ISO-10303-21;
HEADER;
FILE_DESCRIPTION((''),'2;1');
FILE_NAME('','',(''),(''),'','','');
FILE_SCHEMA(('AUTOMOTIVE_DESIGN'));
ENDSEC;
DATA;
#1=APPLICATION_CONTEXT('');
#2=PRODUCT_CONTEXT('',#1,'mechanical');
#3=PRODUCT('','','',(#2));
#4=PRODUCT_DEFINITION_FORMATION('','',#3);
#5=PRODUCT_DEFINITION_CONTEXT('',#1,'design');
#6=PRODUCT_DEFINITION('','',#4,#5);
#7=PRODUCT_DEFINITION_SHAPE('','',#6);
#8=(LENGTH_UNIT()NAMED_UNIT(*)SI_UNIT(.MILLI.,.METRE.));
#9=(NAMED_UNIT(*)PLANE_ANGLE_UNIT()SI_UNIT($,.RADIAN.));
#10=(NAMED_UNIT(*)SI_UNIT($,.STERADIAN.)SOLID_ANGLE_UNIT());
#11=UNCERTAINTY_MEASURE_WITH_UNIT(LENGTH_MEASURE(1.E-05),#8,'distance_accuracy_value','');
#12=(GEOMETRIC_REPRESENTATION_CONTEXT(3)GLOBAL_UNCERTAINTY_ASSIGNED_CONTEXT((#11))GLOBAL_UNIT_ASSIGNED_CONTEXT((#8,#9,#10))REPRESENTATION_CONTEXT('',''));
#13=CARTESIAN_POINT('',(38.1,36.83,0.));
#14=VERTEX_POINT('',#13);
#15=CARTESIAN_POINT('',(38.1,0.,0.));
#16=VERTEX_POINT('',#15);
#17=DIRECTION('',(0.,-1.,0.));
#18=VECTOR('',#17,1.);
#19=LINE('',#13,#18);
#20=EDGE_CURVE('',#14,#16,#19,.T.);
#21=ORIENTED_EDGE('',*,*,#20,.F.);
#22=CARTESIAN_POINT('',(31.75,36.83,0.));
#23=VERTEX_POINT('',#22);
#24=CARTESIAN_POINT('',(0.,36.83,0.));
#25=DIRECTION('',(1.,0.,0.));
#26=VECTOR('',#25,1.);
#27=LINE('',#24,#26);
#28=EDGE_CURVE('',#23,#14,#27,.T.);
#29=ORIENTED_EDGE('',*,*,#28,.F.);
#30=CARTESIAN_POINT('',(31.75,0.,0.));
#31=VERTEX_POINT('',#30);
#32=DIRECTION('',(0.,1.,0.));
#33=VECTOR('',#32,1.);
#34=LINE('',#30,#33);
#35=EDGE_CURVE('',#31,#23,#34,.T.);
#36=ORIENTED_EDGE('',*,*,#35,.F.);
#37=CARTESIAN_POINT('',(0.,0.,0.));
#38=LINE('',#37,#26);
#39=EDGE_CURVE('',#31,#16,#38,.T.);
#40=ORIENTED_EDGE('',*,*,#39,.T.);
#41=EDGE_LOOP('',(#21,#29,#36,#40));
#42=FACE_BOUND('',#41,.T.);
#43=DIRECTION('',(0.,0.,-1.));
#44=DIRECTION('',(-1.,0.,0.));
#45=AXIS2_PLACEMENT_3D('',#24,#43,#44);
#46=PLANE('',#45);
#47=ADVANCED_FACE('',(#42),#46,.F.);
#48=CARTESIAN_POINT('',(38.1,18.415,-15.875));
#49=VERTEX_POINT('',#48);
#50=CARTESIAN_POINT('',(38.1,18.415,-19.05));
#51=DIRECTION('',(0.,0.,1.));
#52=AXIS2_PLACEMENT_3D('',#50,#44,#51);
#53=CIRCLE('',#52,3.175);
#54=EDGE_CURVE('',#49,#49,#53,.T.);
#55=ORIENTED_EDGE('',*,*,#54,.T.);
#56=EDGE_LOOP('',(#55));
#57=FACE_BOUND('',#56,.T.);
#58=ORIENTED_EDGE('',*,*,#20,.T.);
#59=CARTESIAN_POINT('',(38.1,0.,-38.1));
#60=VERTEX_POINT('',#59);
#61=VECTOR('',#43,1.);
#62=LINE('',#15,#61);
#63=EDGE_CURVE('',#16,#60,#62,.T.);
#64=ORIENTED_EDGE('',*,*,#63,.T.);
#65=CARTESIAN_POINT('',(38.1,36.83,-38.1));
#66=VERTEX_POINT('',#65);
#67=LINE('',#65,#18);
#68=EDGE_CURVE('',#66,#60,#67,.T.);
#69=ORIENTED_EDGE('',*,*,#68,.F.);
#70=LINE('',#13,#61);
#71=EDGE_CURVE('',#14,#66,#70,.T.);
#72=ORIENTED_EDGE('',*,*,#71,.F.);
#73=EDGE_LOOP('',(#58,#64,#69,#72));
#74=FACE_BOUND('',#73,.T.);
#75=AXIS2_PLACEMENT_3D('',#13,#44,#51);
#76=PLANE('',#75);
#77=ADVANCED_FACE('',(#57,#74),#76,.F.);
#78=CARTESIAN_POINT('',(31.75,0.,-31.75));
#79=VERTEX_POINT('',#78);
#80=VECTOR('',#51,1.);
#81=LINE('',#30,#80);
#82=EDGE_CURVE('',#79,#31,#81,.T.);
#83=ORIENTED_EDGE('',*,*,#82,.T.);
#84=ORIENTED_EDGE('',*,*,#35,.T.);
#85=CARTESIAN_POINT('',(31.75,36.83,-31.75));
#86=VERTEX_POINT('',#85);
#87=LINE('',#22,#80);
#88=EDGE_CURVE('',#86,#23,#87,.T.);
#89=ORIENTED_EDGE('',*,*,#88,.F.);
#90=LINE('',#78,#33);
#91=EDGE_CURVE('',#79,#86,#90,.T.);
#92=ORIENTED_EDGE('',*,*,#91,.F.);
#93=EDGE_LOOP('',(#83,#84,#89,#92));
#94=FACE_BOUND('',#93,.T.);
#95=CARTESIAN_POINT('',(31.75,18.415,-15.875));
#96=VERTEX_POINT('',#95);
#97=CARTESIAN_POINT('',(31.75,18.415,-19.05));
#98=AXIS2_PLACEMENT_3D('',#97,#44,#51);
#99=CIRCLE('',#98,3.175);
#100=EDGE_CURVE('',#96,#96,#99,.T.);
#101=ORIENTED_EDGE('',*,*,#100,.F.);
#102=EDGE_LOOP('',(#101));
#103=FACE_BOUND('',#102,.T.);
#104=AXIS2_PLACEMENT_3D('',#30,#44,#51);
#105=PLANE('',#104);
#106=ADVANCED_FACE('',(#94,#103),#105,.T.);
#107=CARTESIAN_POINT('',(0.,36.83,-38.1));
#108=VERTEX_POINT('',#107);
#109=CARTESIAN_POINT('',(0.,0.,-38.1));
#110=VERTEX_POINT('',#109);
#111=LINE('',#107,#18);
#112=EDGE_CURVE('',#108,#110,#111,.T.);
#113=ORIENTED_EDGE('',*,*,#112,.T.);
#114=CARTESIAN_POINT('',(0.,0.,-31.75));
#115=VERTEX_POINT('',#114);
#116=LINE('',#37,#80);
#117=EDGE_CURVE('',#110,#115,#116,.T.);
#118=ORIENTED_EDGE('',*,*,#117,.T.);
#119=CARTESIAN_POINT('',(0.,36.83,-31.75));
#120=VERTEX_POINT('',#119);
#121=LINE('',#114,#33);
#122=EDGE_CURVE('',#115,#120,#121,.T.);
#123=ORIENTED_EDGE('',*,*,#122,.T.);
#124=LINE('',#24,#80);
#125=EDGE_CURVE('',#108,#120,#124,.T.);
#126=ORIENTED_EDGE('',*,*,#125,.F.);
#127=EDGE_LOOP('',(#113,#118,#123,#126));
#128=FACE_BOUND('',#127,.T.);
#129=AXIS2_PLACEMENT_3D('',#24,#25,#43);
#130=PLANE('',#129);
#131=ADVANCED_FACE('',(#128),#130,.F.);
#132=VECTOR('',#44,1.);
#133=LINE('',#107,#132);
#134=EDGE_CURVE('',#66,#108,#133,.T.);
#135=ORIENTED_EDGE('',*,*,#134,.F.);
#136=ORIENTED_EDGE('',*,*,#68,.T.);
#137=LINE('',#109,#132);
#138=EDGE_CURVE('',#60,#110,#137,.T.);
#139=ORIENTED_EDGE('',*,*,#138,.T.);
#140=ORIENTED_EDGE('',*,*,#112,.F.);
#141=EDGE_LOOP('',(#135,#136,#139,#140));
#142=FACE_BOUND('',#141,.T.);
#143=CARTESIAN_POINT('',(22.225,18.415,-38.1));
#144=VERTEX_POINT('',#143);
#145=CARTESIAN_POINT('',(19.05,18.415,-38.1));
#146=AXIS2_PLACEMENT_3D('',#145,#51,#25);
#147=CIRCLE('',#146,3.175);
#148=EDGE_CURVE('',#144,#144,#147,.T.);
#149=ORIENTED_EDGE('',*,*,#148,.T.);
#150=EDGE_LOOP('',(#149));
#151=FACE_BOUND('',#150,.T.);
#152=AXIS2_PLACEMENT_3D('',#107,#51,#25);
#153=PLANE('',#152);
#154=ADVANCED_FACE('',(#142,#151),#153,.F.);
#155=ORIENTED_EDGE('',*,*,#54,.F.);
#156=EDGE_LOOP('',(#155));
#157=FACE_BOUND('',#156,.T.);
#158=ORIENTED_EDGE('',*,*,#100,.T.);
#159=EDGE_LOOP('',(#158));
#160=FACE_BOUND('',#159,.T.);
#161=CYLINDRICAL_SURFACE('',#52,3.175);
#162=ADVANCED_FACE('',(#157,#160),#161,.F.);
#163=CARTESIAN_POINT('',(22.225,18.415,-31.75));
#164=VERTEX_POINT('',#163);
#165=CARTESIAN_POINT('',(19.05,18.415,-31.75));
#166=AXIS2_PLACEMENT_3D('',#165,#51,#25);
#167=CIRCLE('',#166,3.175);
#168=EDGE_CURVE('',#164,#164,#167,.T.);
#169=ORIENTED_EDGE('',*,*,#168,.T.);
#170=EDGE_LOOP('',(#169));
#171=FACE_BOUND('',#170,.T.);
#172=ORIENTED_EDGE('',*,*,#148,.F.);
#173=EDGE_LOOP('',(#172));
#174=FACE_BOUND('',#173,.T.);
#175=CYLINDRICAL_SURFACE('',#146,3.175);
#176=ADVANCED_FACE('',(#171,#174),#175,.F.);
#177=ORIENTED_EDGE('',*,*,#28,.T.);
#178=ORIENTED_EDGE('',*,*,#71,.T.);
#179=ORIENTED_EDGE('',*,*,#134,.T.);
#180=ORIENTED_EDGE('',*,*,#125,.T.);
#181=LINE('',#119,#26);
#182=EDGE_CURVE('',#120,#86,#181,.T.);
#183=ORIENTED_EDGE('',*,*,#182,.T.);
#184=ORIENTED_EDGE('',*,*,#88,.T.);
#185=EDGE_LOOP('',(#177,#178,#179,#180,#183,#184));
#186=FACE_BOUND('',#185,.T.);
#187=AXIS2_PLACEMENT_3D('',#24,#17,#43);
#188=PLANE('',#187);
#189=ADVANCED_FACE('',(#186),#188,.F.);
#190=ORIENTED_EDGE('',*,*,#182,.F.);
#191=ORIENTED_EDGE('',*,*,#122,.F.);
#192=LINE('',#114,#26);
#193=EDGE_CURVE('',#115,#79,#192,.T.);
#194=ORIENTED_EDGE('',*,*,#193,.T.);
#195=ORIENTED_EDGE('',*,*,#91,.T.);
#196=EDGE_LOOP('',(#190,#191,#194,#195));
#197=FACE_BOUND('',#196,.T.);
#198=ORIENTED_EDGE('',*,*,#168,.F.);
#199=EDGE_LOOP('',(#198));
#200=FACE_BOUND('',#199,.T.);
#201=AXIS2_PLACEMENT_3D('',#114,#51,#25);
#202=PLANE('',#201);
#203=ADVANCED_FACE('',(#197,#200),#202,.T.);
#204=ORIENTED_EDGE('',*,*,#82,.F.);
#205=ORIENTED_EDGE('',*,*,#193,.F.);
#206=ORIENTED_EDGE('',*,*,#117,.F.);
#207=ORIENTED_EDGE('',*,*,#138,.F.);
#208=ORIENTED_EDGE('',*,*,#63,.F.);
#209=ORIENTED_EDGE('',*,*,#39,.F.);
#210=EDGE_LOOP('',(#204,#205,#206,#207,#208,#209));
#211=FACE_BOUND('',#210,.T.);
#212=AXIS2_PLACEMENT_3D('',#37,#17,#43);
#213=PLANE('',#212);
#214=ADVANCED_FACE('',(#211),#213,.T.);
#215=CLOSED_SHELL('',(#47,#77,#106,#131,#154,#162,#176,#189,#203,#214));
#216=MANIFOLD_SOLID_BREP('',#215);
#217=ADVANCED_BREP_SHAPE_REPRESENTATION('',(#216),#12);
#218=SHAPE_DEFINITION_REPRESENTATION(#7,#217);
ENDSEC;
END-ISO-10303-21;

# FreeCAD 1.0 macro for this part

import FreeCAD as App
import Part
import Sketcher

V = App.Vector
Q = App.Units.Quantity

doc = App.newDocument("Part")
params = doc.addObject("Spreadsheet::Sheet", "Params")
for row, (alias, value) in enumerate([
    ("sketch1_width", "1.5 in"),
    ("pad1_length", "1.45 in"),
    ("sketch2_width", "1.25 in"),
    ("sketch3_diameter", "0.25 in"),
    ("sketch4_diameter", "0.25 in"),
], start=1):
    params.set(f"A{row}", alias)
    params.set(f"B{row}", "=" + value)
    params.setAlias(f"B{row}", alias)

body = doc.addObject("PartDesign::Body", "Body")

# Sketch on XZ plane
sketch1 = body.newObject("Sketcher::SketchObject", "Sketch")
sketch1.AttachmentSupport = (doc.getObject("XZ_Plane"), [""])
sketch1.MapMode = "FlatFace"
sketch1.addGeometry(Part.LineSegment(V(0, -38.1, 0), V(0, 0, 0)), False)
sketch1.addGeometry(Part.LineSegment(V(0, 0, 0), V(38.1, 0, 0)), False)
sketch1.addGeometry(Part.LineSegment(V(38.1, 0, 0), V(38.1, -38.1, 0)), False)
sketch1.addGeometry(Part.LineSegment(V(38.1, -38.1, 0), V(0, -38.1, 0)), False)
sketch1.addConstraint(Sketcher.Constraint("Coincident", 0, 2, 1, 1))
sketch1.addConstraint(Sketcher.Constraint("Coincident", 1, 2, 2, 1))
sketch1.addConstraint(Sketcher.Constraint("Coincident", 2, 2, 3, 1))
sketch1.addConstraint(Sketcher.Constraint("Coincident", 3, 2, 0, 1))
sketch1.addConstraint(Sketcher.Constraint("Vertical", 0))
sketch1.addConstraint(Sketcher.Constraint("Horizontal", 1))
sketch1.addConstraint(Sketcher.Constraint("Vertical", 2))
sketch1.addConstraint(Sketcher.Constraint("Horizontal", 3))
sketch1.addConstraint(Sketcher.Constraint("Coincident", 0, 2, -1, 1))
sketch1.addConstraint(Sketcher.Constraint("Equal", 3, 0))
sketch1.addConstraint(Sketcher.Constraint("DistanceX", 1, 1, 1, 2, Q("1.5 in")))
sketch1.setExpression("Constraints[10]", "Params.sketch1_width")
pad1 = body.newObject("PartDesign::Pad", "Pad")
pad1.Profile = sketch1
pad1.setExpression("Length", "Params.pad1_length")
pad1.Reversed = True

# Sketch on XZ plane
sketch2 = body.newObject("Sketcher::SketchObject", "Sketch001")
sketch2.AttachmentSupport = (doc.getObject("XZ_Plane"), [""])
sketch2.MapMode = "FlatFace"
sketch2.AttachmentOffset = App.Placement(V(0, 0, -1.45 * 25.4), App.Rotation())
sketch2.addGeometry(Part.LineSegment(V(0, -31.75, 0), V(0, 0, 0)), False)
sketch2.addGeometry(Part.LineSegment(V(0, 0, 0), V(31.75, 0, 0)), False)
sketch2.addGeometry(Part.LineSegment(V(31.75, 0, 0), V(31.75, -31.75, 0)), False)
sketch2.addGeometry(Part.LineSegment(V(31.75, -31.75, 0), V(0, -31.75, 0)), False)
sketch2.addConstraint(Sketcher.Constraint("Coincident", 0, 2, 1, 1))
sketch2.addConstraint(Sketcher.Constraint("Coincident", 1, 2, 2, 1))
sketch2.addConstraint(Sketcher.Constraint("Coincident", 2, 2, 3, 1))
sketch2.addConstraint(Sketcher.Constraint("Coincident", 3, 2, 0, 1))
sketch2.addConstraint(Sketcher.Constraint("Vertical", 0))
sketch2.addConstraint(Sketcher.Constraint("Horizontal", 1))
sketch2.addConstraint(Sketcher.Constraint("Vertical", 2))
sketch2.addConstraint(Sketcher.Constraint("Horizontal", 3))
sketch2.addConstraint(Sketcher.Constraint("Coincident", 0, 2, -1, 1))
sketch2.addConstraint(Sketcher.Constraint("Equal", 3, 0))
sketch2.addConstraint(Sketcher.Constraint("DistanceX", 1, 1, 1, 2, Q("1.25 in")))
sketch2.setExpression("Constraints[10]", "Params.sketch2_width")
pocket1 = body.newObject("PartDesign::Pocket", "Pocket")
pocket1.Profile = sketch2
pocket1.Type = "ThroughAll"
pocket1.Reversed = True

# Sketch on YZ plane
sketch3 = body.newObject("Sketcher::SketchObject", "Sketch002")
sketch3.AttachmentSupport = (doc.getObject("YZ_Plane"), [""])
sketch3.MapMode = "FlatFace"
sketch3.AttachmentOffset = App.Placement(V(0, 0, 1.25 * 25.4), App.Rotation())
sketch3.addGeometry(Part.Circle(V(18.415, -19.05, 0), V(0, 0, 1), 3.175), False)
sketch3.addConstraint(Sketcher.Constraint("Diameter", 0, Q("0.25 in")))
sketch3.addConstraint(Sketcher.Constraint("DistanceY", 0, 3, -1, 1, Q("0.75 in")))
sketch3.addConstraint(Sketcher.Constraint("DistanceX", -1, 1, 0, 3, Q("0.725 in")))
sketch3.setExpression("Constraints[0]", "Params.sketch3_diameter")
pocket2 = body.newObject("PartDesign::Pocket", "Pocket001")
pocket2.Profile = sketch3
pocket2.Type = "ThroughAll"
pocket2.Reversed = True

# Sketch on XY plane
sketch4 = body.newObject("Sketcher::SketchObject", "Sketch003")
sketch4.AttachmentSupport = (doc.getObject("XY_Plane"), [""])
sketch4.MapMode = "FlatFace"
sketch4.AttachmentOffset = App.Placement(V(0, 0, -1.25 * 25.4), App.Rotation())
sketch4.addGeometry(Part.Circle(V(19.05, 18.415, 0), V(0, 0, 1), 3.175), False)
sketch4.addConstraint(Sketcher.Constraint("Diameter", 0, Q("0.25 in")))
sketch4.addConstraint(Sketcher.Constraint("DistanceX", -1, 1, 0, 3, Q("0.75 in")))
sketch4.addConstraint(Sketcher.Constraint("DistanceY", -1, 1, 0, 3, Q("0.725 in")))
sketch4.setExpression("Constraints[0]", "Params.sketch4_diameter")
pocket3 = body.newObject("PartDesign::Pocket", "Pocket002")
pocket3.Profile = sketch4
pocket3.Type = "ThroughAll"

doc.recompute()
